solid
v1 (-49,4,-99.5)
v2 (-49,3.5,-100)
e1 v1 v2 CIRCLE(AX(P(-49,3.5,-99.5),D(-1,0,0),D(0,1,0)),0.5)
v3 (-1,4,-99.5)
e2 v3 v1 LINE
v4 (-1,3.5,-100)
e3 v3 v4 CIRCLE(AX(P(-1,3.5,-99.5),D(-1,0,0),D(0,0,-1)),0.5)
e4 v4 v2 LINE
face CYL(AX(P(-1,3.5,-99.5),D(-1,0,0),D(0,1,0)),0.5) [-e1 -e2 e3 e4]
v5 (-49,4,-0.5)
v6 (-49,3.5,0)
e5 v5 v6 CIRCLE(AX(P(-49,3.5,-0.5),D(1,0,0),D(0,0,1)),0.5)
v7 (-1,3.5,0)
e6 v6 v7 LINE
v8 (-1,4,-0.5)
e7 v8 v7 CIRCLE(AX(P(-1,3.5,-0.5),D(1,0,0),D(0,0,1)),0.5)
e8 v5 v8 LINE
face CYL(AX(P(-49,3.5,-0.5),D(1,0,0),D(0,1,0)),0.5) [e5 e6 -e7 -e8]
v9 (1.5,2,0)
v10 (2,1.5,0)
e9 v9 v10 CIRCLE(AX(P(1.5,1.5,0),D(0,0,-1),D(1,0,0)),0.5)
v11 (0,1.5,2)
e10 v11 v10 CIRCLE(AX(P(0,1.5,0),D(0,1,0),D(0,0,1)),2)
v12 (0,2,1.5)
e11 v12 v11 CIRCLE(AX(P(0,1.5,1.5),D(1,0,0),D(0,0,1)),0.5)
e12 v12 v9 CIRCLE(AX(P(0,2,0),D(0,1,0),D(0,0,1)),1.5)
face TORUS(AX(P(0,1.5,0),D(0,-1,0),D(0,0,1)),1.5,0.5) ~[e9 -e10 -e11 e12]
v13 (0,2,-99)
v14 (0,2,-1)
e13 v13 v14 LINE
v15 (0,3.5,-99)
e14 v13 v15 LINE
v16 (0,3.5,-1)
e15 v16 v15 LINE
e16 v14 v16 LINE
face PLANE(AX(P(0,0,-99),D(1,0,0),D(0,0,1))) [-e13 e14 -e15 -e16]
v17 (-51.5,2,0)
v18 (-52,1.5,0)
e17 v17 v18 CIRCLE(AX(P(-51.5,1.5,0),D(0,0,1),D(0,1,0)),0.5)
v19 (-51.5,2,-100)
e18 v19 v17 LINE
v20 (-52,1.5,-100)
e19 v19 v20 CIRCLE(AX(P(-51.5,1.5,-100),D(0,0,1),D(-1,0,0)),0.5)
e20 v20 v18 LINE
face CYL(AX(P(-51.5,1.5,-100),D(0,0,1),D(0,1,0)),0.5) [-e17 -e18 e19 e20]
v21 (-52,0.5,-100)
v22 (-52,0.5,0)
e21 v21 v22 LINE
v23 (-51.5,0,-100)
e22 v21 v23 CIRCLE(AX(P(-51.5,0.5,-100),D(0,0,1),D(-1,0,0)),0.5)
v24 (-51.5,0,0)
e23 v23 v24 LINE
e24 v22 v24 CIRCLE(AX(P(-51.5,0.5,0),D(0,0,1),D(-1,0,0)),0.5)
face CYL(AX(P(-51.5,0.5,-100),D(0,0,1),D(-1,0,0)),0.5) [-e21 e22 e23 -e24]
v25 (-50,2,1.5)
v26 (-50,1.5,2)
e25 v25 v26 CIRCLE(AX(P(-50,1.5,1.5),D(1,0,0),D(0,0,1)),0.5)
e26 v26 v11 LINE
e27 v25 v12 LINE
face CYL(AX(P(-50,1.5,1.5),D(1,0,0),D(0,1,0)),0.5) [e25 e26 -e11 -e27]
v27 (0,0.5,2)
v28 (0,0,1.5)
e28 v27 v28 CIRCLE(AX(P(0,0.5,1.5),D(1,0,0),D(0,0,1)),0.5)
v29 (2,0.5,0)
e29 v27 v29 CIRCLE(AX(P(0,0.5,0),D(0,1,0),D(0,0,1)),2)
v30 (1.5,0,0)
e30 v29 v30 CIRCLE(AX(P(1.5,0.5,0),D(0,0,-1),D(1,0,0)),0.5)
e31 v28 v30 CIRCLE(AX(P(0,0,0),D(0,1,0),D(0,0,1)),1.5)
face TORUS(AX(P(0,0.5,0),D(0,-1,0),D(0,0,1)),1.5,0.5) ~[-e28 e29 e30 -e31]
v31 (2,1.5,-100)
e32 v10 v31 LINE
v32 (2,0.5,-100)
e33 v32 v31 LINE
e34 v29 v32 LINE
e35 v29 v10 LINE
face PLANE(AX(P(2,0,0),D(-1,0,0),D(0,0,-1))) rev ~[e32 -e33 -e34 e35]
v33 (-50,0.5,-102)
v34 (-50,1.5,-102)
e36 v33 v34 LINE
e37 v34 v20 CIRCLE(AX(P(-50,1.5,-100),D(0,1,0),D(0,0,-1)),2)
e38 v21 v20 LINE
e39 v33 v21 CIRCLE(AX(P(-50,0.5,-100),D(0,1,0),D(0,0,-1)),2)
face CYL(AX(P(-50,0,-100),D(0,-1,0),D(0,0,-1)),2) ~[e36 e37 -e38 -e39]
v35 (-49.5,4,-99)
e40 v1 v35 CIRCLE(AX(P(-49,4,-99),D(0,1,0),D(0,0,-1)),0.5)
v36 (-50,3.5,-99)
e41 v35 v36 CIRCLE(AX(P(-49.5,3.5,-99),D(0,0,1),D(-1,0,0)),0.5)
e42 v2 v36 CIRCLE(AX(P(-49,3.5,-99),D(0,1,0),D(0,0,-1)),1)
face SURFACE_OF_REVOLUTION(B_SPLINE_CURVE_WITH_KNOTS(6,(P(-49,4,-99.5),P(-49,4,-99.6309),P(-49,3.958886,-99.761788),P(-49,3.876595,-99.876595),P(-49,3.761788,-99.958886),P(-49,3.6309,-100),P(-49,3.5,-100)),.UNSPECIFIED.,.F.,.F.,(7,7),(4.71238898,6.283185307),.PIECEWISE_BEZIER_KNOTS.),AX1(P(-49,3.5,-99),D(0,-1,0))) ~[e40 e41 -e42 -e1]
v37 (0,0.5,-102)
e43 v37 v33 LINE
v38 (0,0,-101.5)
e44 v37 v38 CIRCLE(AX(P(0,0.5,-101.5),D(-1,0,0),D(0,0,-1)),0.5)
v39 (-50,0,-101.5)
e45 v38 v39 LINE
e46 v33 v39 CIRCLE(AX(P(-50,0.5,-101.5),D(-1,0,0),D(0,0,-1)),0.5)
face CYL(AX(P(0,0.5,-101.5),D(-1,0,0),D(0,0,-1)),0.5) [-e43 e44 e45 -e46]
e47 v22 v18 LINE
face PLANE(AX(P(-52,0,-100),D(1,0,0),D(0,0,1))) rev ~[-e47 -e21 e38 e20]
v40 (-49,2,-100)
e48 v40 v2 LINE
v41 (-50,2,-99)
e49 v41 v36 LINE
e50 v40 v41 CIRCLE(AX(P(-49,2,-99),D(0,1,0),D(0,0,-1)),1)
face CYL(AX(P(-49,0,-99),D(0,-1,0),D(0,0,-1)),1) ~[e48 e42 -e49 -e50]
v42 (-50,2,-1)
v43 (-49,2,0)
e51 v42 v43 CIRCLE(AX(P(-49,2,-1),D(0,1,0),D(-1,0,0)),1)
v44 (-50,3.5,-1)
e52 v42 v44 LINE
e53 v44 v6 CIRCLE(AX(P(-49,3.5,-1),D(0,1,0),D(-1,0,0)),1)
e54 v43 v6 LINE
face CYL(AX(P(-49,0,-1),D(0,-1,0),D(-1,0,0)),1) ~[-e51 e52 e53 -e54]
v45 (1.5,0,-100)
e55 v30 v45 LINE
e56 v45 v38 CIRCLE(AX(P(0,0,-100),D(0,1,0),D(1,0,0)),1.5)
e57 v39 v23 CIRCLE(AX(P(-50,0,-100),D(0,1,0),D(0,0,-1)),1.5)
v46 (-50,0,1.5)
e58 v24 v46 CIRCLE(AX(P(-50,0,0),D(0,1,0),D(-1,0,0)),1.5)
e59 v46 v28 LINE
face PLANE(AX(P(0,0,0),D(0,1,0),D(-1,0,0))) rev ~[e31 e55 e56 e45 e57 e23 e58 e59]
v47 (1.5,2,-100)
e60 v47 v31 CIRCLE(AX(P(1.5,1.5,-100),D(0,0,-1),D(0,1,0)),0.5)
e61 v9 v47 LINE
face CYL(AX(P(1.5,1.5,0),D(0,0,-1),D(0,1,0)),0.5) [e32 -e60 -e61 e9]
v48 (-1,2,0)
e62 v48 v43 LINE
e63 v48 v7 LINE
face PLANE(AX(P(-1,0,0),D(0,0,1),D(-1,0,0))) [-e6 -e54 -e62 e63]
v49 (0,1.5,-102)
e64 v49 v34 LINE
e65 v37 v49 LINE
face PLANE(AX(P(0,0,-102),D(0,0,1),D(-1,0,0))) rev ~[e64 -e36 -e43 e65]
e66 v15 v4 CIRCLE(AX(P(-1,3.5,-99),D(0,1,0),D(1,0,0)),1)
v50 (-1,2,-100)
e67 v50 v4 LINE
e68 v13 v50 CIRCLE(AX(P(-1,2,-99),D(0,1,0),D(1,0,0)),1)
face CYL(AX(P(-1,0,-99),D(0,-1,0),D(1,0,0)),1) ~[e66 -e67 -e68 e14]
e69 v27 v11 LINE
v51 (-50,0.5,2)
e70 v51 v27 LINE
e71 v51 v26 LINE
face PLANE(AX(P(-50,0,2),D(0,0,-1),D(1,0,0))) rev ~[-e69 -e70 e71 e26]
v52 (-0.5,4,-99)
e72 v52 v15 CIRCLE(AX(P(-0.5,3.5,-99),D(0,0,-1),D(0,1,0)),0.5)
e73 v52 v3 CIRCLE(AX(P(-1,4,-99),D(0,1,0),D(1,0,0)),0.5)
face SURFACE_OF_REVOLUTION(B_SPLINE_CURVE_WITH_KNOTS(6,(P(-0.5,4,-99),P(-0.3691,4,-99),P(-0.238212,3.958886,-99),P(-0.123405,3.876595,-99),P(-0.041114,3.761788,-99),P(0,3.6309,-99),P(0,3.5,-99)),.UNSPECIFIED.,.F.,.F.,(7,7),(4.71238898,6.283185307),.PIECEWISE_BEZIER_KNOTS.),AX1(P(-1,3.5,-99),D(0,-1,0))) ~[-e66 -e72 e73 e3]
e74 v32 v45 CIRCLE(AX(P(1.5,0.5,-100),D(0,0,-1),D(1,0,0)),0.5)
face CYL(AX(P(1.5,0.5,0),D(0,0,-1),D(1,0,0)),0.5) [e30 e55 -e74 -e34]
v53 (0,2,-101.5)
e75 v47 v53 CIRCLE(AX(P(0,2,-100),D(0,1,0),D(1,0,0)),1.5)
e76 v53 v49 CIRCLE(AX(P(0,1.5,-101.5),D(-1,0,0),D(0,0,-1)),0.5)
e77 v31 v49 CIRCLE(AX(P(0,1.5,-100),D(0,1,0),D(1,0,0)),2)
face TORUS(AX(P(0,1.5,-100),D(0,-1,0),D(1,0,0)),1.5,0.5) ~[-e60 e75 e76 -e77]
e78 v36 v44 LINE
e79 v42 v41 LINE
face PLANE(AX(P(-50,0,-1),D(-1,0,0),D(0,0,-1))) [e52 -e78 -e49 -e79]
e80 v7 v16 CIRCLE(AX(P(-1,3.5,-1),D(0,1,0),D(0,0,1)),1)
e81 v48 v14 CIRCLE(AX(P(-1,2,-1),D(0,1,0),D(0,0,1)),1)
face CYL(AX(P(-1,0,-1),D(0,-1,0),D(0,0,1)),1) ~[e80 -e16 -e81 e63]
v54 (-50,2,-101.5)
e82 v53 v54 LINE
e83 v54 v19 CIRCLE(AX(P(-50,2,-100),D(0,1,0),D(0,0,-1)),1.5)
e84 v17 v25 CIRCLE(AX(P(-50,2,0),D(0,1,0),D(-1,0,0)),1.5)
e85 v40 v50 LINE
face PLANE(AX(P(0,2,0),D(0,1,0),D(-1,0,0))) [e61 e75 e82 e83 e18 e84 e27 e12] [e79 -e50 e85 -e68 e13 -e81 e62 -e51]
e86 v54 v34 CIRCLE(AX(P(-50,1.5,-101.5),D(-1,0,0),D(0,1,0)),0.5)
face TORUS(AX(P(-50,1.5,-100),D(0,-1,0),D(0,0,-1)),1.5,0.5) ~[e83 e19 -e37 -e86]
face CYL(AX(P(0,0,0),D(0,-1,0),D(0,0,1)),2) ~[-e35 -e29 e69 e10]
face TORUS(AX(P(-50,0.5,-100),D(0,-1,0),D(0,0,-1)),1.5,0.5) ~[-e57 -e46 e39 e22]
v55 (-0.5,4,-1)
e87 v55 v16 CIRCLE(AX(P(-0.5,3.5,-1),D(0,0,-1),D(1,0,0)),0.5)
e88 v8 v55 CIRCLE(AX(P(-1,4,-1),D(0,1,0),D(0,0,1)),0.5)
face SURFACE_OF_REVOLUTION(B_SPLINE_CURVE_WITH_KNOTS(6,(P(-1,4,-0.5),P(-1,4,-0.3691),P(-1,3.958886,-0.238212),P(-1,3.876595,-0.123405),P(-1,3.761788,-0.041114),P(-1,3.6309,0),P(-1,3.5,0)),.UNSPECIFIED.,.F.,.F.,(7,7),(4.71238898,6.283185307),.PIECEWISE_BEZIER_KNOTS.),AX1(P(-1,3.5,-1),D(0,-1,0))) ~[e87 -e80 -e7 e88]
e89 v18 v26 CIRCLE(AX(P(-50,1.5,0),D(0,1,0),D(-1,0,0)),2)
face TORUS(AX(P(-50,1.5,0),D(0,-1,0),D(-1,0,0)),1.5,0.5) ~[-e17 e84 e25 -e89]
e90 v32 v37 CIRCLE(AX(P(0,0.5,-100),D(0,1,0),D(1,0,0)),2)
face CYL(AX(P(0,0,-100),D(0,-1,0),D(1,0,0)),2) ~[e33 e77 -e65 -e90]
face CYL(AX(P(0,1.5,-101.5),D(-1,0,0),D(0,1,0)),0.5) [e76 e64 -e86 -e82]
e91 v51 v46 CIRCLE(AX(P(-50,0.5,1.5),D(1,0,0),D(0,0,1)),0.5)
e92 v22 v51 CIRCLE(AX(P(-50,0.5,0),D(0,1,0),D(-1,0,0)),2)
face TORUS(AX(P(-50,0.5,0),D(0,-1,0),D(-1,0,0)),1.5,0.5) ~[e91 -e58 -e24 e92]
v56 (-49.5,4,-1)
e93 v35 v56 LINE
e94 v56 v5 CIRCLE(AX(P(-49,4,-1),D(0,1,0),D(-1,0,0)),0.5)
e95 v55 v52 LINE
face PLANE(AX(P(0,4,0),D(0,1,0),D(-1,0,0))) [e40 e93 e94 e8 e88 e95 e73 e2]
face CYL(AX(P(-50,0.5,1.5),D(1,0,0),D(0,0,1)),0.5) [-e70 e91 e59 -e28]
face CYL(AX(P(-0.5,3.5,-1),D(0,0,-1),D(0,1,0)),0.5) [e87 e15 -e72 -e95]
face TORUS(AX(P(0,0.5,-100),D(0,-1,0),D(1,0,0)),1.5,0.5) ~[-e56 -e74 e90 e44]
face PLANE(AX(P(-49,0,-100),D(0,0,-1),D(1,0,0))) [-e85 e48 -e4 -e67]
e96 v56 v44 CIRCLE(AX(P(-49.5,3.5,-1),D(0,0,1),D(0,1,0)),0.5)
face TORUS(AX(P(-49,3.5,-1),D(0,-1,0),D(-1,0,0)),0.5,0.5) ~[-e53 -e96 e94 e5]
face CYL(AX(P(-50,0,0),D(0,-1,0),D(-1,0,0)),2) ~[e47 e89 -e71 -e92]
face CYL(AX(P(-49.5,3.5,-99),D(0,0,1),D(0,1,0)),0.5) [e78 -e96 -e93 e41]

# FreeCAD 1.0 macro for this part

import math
import FreeCAD as App
import Part
import Sketcher


def edges_at(feature, points):
    """Names of the edges that pass closest to the given points."""
    edges = feature.Shape.Edges
    near = lambda p: min(range(len(edges)), key=lambda i: edges[i].distToShape(Part.Vertex(*p))[0])
    return sorted({f"Edge{near(p) + 1}" for p in points})

doc = App.newDocument("Part")
body = doc.addObject("PartDesign::Body", "Body")

sketch1 = doc.addObject("Sketcher::SketchObject", "Sketch")
body.addObject(sketch1)
sketch1.AttachmentSupport = (doc.XZ_Plane, [""])
sketch1.MapMode = "FlatFace"
sketch1.addGeometry([
    Part.LineSegment(App.Vector(-49, 0, 0), App.Vector(-1, 0, 0)),
    Part.ArcOfCircle(Part.Circle(App.Vector(-1, -1, 0), App.Vector(0, 0, 1), 1), math.radians(0), math.radians(90)),
    Part.LineSegment(App.Vector(0, -1, 0), App.Vector(0, -99, 0)),
    Part.ArcOfCircle(Part.Circle(App.Vector(-1, -99, 0), App.Vector(0, 0, 1), 1), math.radians(-90), math.radians(0)),
    Part.LineSegment(App.Vector(-1, -100, 0), App.Vector(-49, -100, 0)),
    Part.ArcOfCircle(Part.Circle(App.Vector(-49, -99, 0), App.Vector(0, 0, 1), 1), math.radians(180), math.radians(270)),
    Part.LineSegment(App.Vector(-50, -99, 0), App.Vector(-50, -1, 0)),
    Part.ArcOfCircle(Part.Circle(App.Vector(-49, -1, 0), App.Vector(0, 0, 1), 1), math.radians(90), math.radians(180)),
], False)
sketch1.addConstraint([
    Sketcher.Constraint("Tangent", 0, 2, 1, 2),
    Sketcher.Constraint("Tangent", 1, 1, 2, 1),
    Sketcher.Constraint("Tangent", 2, 2, 3, 2),
    Sketcher.Constraint("Tangent", 3, 1, 4, 1),
    Sketcher.Constraint("Tangent", 4, 2, 5, 2),
    Sketcher.Constraint("Tangent", 5, 1, 6, 1),
    Sketcher.Constraint("Tangent", 6, 2, 7, 2),
    Sketcher.Constraint("Tangent", 7, 1, 0, 1),
    Sketcher.Constraint("Horizontal", 0),
    Sketcher.Constraint("Vertical", 2),
    Sketcher.Constraint("Horizontal", 4),
    Sketcher.Constraint("Vertical", 6),
    Sketcher.Constraint("Equal", 1, 3),
    Sketcher.Constraint("Equal", 3, 5),
    Sketcher.Constraint("Equal", 5, 7),
    Sketcher.Constraint("PointOnObject", 0, 2, -1),
    Sketcher.Constraint("PointOnObject", 1, 1, -2),
    Sketcher.Constraint("Radius", 1, 1.0),
    Sketcher.Constraint("DistanceY", 3, 1, -1, 1, 100.0),
    Sketcher.Constraint("DistanceX", 5, 1, -1, 1, 50.0),
])
pad1 = doc.addObject("PartDesign::Pad", "Pad")
body.addObject(pad1)
pad1.Profile = sketch1
pad1.Length = 4
pad1.Reversed = True

sketch2 = doc.addObject("Sketcher::SketchObject", "Sketch001")
body.addObject(sketch2)
sketch2.AttachmentSupport = (doc.XZ_Plane, [""])
sketch2.MapMode = "FlatFace"
sketch2.addGeometry([
    Part.ArcOfCircle(Part.Circle(App.Vector(-50, 0, 0), App.Vector(0, 0, 1), 2), math.radians(90), math.radians(180)),
    Part.LineSegment(App.Vector(-50, 2, 0), App.Vector(0, 2, 0)),
    Part.ArcOfCircle(Part.Circle(App.Vector(0, 0, 0), App.Vector(0, 0, 1), 2), math.radians(0), math.radians(90)),
    Part.LineSegment(App.Vector(2, 0, 0), App.Vector(2, -100, 0)),
    Part.ArcOfCircle(Part.Circle(App.Vector(0, -100, 0), App.Vector(0, 0, 1), 2), math.radians(-90), math.radians(0)),
    Part.LineSegment(App.Vector(0, -102, 0), App.Vector(-50, -102, 0)),
    Part.ArcOfCircle(Part.Circle(App.Vector(-50, -100, 0), App.Vector(0, 0, 1), 2), math.radians(180), math.radians(270)),
    Part.LineSegment(App.Vector(-52, -100, 0), App.Vector(-52, 0, 0)),
    Part.ArcOfCircle(Part.Circle(App.Vector(-1, -1, 0), App.Vector(0, 0, 1), 1), math.radians(0), math.radians(90)),
    Part.LineSegment(App.Vector(-1, 0, 0), App.Vector(-49, 0, 0)),
    Part.ArcOfCircle(Part.Circle(App.Vector(-49, -1, 0), App.Vector(0, 0, 1), 1), math.radians(90), math.radians(180)),
    Part.LineSegment(App.Vector(-50, -1, 0), App.Vector(-50, -99, 0)),
    Part.ArcOfCircle(Part.Circle(App.Vector(-49, -99, 0), App.Vector(0, 0, 1), 1), math.radians(180), math.radians(270)),
    Part.LineSegment(App.Vector(-49, -100, 0), App.Vector(-1, -100, 0)),
    Part.ArcOfCircle(Part.Circle(App.Vector(-1, -99, 0), App.Vector(0, 0, 1), 1), math.radians(-90), math.radians(0)),
    Part.LineSegment(App.Vector(0, -99, 0), App.Vector(0, -1, 0)),
], False)
sketch2.addConstraint([
    Sketcher.Constraint("Tangent", 0, 1, 1, 1),
    Sketcher.Constraint("Tangent", 1, 2, 2, 2),
    Sketcher.Constraint("Tangent", 2, 1, 3, 1),
    Sketcher.Constraint("Tangent", 3, 2, 4, 2),
    Sketcher.Constraint("Tangent", 4, 1, 5, 1),
    Sketcher.Constraint("Tangent", 5, 2, 6, 2),
    Sketcher.Constraint("Tangent", 6, 1, 7, 1),
    Sketcher.Constraint("Tangent", 7, 2, 0, 2),
    Sketcher.Constraint("Tangent", 8, 2, 9, 1),
    Sketcher.Constraint("Tangent", 9, 2, 10, 1),
    Sketcher.Constraint("Tangent", 10, 2, 11, 1),
    Sketcher.Constraint("Tangent", 11, 2, 12, 1),
    Sketcher.Constraint("Tangent", 12, 2, 13, 1),
    Sketcher.Constraint("Tangent", 13, 2, 14, 1),
    Sketcher.Constraint("Tangent", 14, 2, 15, 1),
    Sketcher.Constraint("Tangent", 15, 2, 8, 1),
    Sketcher.Constraint("Horizontal", 1),
    Sketcher.Constraint("Vertical", 3),
    Sketcher.Constraint("Horizontal", 5),
    Sketcher.Constraint("Vertical", 7),
    Sketcher.Constraint("Horizontal", 9),
    Sketcher.Constraint("Vertical", 11),
    Sketcher.Constraint("Horizontal", 13),
    Sketcher.Constraint("Vertical", 15),
    Sketcher.Constraint("Coincident", 2, 3, -1, 1),
    Sketcher.Constraint("Equal", 0, 2),
    Sketcher.Constraint("Equal", 2, 4),
    Sketcher.Constraint("Equal", 4, 6),
    Sketcher.Constraint("Equal", 8, 10),
    Sketcher.Constraint("Equal", 10, 12),
    Sketcher.Constraint("Equal", 12, 14),
    Sketcher.Constraint("PointOnObject", 8, 2, -1),
    Sketcher.Constraint("PointOnObject", 14, 2, -2),
    Sketcher.Constraint("Horizontal", 6, 1, 12, 2),
    Sketcher.Constraint("Vertical", 5, 2, 10, 2),
    Sketcher.Constraint("Radius", 0, 2.0),
    Sketcher.Constraint("Radius", 8, 1.0),
    Sketcher.Constraint("DistanceX", 1, 1, 1, 2, 50.0),
    Sketcher.Constraint("DistanceY", 3, 2, 3, 1, 100.0),
])
pad2 = doc.addObject("PartDesign::Pad", "Pad001")
body.addObject(pad2)
pad2.Profile = sketch2
pad2.Length = 2
pad2.Reversed = True
doc.recompute()

fillet = doc.addObject("PartDesign::Fillet", "Fillet")
body.addObject(fillet)
fillet.Base = (pad2, edges_at(pad2, [
    (-0.293, 4, -0.293),
    (0, 4, -50),
    (-0.293, 4, -99.707),
    (-25, 4, -100),
    (-49.707, 4, -99.707),
    (-50, 4, -50),
    (-49.707, 4, -0.293),
    (-25, 4, 0),
    (1.414, 2, 1.414),
    (2, 2, -50),
    (1.414, 2, -101.414),
    (-25, 2, -102),
    (-51.414, 2, -101.414),
    (-52, 2, -50),
    (-51.414, 2, 1.414),
    (-25, 2, 2),
    (1.414, 0, 1.414),
    (2, 0, -50),
    (1.414, 0, -101.414),
    (-25, 0, -102),
    (-51.414, 0, -101.414),
    (-52, 0, -50),
    (-51.414, 0, 1.414),
    (-25, 0, 2),
]))
fillet.Radius = 0.5

doc.recompute()
